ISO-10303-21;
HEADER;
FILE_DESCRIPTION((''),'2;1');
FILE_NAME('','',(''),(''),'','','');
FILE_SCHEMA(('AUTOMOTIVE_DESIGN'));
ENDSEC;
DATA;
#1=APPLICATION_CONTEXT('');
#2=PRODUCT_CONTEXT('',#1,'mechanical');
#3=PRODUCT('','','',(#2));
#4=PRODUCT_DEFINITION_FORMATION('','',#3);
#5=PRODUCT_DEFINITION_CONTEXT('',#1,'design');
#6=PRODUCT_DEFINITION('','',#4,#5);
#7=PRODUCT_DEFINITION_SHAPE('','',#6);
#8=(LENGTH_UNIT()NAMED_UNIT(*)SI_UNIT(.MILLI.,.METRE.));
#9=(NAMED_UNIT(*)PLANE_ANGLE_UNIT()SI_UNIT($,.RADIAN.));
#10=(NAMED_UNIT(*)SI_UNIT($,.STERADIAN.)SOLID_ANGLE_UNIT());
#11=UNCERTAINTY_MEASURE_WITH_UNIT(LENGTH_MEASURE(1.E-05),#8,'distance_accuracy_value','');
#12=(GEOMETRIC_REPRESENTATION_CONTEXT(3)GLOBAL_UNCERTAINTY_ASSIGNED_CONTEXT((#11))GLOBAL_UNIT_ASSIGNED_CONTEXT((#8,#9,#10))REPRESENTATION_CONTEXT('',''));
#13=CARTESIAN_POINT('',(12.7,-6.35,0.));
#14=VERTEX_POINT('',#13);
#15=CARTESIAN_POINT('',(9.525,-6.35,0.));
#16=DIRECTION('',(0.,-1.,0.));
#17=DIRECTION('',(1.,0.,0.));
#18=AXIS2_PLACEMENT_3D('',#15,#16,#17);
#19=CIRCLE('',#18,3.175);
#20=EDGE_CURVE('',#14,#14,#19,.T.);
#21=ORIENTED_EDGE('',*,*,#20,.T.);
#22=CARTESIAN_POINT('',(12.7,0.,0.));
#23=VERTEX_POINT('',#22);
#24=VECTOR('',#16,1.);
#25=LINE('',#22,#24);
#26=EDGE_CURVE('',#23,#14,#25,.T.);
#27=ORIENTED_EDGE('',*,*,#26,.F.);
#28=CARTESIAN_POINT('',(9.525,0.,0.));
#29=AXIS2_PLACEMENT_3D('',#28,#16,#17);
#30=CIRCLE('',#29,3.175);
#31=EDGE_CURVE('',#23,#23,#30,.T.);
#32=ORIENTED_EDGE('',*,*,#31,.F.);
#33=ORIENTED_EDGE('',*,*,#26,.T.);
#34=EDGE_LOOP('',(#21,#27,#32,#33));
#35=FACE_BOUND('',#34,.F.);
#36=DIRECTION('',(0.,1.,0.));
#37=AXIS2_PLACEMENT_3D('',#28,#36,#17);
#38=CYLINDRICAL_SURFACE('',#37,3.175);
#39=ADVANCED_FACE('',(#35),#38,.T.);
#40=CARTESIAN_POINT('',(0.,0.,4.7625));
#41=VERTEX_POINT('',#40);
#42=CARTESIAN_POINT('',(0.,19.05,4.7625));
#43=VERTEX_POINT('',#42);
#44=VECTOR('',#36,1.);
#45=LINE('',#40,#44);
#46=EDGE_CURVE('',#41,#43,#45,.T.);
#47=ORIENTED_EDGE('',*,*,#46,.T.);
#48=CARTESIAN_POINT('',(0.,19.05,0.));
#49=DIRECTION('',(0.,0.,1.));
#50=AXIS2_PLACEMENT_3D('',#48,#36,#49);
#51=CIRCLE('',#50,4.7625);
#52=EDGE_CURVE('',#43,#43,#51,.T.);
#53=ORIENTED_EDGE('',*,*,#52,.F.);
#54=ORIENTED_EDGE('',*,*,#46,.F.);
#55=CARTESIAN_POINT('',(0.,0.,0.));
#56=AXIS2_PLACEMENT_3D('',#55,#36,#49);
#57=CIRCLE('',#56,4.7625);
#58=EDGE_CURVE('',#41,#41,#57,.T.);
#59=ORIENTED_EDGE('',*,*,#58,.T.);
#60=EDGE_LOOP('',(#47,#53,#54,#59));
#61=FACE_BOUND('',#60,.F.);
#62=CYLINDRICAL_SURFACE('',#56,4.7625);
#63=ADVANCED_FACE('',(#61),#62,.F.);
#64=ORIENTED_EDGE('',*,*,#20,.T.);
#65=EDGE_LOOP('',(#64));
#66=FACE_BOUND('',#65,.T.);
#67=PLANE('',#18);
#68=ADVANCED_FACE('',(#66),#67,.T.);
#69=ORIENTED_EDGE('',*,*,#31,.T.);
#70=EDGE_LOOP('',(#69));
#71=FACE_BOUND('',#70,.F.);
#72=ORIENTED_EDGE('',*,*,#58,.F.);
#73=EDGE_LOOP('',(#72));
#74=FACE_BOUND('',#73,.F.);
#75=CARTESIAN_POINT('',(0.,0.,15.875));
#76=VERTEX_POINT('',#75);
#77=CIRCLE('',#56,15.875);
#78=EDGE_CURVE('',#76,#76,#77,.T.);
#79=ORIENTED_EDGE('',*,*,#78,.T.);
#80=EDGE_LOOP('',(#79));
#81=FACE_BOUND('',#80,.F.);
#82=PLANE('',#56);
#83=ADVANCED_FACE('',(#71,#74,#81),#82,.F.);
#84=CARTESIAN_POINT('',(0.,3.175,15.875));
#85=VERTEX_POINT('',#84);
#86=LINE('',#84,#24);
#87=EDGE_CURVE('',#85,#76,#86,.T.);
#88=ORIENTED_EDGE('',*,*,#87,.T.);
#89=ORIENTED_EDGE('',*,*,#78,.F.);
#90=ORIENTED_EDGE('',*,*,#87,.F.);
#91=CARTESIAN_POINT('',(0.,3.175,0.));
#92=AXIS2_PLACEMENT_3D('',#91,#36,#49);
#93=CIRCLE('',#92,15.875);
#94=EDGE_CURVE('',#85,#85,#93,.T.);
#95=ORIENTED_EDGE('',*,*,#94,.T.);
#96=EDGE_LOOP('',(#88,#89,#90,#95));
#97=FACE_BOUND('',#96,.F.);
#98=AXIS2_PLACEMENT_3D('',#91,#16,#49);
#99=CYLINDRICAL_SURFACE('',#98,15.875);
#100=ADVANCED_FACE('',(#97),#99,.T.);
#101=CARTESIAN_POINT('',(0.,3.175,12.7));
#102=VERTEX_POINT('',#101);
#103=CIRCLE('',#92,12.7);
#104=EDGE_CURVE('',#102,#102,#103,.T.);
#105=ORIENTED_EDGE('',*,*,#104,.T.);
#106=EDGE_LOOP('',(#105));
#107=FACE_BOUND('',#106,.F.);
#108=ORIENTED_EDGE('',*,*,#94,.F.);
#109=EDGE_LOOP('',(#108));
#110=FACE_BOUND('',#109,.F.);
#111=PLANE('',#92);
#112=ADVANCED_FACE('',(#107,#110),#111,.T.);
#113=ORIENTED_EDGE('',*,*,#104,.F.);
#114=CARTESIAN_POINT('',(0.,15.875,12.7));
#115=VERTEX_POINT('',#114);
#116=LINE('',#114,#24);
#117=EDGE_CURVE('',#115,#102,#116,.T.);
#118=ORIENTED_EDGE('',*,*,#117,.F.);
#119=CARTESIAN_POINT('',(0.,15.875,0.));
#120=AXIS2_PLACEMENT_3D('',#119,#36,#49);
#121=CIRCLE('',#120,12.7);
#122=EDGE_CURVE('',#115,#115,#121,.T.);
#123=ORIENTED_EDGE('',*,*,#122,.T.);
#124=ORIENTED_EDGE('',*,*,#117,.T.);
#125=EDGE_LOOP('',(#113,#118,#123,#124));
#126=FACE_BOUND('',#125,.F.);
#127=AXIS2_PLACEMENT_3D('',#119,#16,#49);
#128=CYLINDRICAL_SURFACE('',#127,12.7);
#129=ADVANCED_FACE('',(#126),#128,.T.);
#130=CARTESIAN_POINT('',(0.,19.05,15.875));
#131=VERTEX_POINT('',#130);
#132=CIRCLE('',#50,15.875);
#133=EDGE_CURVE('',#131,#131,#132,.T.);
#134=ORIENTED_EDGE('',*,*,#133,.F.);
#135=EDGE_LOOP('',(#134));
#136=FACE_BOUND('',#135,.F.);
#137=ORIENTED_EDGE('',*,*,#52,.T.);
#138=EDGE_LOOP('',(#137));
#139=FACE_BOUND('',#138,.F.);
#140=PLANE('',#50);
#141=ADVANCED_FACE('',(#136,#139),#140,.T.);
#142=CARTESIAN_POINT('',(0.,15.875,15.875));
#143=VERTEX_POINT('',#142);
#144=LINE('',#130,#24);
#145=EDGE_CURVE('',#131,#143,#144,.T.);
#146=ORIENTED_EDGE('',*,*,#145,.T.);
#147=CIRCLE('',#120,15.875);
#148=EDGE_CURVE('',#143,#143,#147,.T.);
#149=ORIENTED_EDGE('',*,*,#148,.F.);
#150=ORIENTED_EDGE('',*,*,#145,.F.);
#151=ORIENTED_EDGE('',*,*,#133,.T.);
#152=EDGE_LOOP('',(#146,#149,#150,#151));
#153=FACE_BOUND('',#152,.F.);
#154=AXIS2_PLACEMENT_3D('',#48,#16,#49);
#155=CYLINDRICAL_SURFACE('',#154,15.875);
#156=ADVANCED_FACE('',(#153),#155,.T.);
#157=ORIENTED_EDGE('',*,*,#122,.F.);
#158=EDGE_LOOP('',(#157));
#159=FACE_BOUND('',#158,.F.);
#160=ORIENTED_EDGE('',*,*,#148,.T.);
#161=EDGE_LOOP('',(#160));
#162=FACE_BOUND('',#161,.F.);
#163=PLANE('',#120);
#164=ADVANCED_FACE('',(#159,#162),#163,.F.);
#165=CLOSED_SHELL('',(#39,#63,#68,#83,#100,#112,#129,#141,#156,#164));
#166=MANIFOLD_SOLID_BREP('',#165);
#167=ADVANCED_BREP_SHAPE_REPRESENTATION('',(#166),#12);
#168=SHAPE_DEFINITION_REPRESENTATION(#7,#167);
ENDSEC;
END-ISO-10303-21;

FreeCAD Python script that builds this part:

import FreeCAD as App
import Part
import Sketcher
from FreeCAD import Vector
Q = App.Units.Quantity


def add_polygon(sketch, points):
    """Adds a closed chain of lines whose ends are joined by coincident constraints."""
    first, n = sketch.GeometryCount, len(points)
    for a, b in zip(points, points[1:] + points[:1]):
        sketch.addGeometry(Part.LineSegment(App.Vector(*a, 0), App.Vector(*b, 0)), False)
    for i in range(n):
        sketch.addConstraint(Sketcher.Constraint("Coincident", first + i, 2, first + (i + 1) % n, 1))

doc = App.newDocument("Part")
body = doc.addObject("PartDesign::Body", "Body")

# Sketch on YZ plane
sketch1 = body.newObject("Sketcher::SketchObject", "Sketch")
sketch1.AttachmentSupport = (doc.getObject("YZ_Plane"), [""])
sketch1.MapMode = "FlatFace"
add_polygon(sketch1, [(0, 15.875), (0, 4.7625), (19.05, 4.7625), (19.05, 15.875), (15.875, 15.875), (15.875, 12.7), (3.175, 12.7), (3.175, 15.875)])  # lines 0-7
sketch1.addConstraint([
    Sketcher.Constraint("Vertical", 0),
    Sketcher.Constraint("Horizontal", 1),
    Sketcher.Constraint("Vertical", 2),
    Sketcher.Constraint("Horizontal", 3),
    Sketcher.Constraint("Vertical", 4),
    Sketcher.Constraint("Horizontal", 5),
    Sketcher.Constraint("Vertical", 6),
    Sketcher.Constraint("Horizontal", 7),
    Sketcher.Constraint("PointOnObject", 0, 2, -2),
    Sketcher.Constraint("Horizontal", 3, 2, 6, 2),
    Sketcher.Constraint("Equal", 3, 7),
    Sketcher.Constraint("Equal", 7, 4),
    Sketcher.Constraint("DistanceX", 5, 2, 5, 1, Q("0.5 in")),
    Sketcher.Constraint("DistanceX", 1, 1, 1, 2, Q("0.75 in")),
    Sketcher.Constraint("DistanceY", -1, 1, 4, 2, Q("0.5 in")),
    Sketcher.Constraint("DistanceY", 0, 2, 0, 1, Q("0.4375 in")),
])
revolution = body.newObject("PartDesign::Revolution", "Revolution")
revolution.Profile = sketch1
revolution.ReferenceAxis = (sketch1, ["H_Axis"])
revolution.Angle = 360

# Sketch on XZ plane
sketch2 = body.newObject("Sketcher::SketchObject", "Sketch001")
sketch2.AttachmentSupport = (doc.getObject("XZ_Plane"), [""])
sketch2.MapMode = "FlatFace"
sketch2.addGeometry(Part.Circle(Vector(9.525, 0, 0), Vector(0, 0, 1), 3.175), False)
sketch2.addConstraint([
    Sketcher.Constraint("PointOnObject", 0, 3, -1),
    Sketcher.Constraint("Diameter", 0, Q("0.25 in")),
    Sketcher.Constraint("DistanceX", -1, 1, 0, 3, Q("0.375 in")),
])
pad1 = body.newObject("PartDesign::Pad", "Pad")
pad1.Profile = sketch2
pad1.Length = Q("0.25 in")

doc.recompute()
